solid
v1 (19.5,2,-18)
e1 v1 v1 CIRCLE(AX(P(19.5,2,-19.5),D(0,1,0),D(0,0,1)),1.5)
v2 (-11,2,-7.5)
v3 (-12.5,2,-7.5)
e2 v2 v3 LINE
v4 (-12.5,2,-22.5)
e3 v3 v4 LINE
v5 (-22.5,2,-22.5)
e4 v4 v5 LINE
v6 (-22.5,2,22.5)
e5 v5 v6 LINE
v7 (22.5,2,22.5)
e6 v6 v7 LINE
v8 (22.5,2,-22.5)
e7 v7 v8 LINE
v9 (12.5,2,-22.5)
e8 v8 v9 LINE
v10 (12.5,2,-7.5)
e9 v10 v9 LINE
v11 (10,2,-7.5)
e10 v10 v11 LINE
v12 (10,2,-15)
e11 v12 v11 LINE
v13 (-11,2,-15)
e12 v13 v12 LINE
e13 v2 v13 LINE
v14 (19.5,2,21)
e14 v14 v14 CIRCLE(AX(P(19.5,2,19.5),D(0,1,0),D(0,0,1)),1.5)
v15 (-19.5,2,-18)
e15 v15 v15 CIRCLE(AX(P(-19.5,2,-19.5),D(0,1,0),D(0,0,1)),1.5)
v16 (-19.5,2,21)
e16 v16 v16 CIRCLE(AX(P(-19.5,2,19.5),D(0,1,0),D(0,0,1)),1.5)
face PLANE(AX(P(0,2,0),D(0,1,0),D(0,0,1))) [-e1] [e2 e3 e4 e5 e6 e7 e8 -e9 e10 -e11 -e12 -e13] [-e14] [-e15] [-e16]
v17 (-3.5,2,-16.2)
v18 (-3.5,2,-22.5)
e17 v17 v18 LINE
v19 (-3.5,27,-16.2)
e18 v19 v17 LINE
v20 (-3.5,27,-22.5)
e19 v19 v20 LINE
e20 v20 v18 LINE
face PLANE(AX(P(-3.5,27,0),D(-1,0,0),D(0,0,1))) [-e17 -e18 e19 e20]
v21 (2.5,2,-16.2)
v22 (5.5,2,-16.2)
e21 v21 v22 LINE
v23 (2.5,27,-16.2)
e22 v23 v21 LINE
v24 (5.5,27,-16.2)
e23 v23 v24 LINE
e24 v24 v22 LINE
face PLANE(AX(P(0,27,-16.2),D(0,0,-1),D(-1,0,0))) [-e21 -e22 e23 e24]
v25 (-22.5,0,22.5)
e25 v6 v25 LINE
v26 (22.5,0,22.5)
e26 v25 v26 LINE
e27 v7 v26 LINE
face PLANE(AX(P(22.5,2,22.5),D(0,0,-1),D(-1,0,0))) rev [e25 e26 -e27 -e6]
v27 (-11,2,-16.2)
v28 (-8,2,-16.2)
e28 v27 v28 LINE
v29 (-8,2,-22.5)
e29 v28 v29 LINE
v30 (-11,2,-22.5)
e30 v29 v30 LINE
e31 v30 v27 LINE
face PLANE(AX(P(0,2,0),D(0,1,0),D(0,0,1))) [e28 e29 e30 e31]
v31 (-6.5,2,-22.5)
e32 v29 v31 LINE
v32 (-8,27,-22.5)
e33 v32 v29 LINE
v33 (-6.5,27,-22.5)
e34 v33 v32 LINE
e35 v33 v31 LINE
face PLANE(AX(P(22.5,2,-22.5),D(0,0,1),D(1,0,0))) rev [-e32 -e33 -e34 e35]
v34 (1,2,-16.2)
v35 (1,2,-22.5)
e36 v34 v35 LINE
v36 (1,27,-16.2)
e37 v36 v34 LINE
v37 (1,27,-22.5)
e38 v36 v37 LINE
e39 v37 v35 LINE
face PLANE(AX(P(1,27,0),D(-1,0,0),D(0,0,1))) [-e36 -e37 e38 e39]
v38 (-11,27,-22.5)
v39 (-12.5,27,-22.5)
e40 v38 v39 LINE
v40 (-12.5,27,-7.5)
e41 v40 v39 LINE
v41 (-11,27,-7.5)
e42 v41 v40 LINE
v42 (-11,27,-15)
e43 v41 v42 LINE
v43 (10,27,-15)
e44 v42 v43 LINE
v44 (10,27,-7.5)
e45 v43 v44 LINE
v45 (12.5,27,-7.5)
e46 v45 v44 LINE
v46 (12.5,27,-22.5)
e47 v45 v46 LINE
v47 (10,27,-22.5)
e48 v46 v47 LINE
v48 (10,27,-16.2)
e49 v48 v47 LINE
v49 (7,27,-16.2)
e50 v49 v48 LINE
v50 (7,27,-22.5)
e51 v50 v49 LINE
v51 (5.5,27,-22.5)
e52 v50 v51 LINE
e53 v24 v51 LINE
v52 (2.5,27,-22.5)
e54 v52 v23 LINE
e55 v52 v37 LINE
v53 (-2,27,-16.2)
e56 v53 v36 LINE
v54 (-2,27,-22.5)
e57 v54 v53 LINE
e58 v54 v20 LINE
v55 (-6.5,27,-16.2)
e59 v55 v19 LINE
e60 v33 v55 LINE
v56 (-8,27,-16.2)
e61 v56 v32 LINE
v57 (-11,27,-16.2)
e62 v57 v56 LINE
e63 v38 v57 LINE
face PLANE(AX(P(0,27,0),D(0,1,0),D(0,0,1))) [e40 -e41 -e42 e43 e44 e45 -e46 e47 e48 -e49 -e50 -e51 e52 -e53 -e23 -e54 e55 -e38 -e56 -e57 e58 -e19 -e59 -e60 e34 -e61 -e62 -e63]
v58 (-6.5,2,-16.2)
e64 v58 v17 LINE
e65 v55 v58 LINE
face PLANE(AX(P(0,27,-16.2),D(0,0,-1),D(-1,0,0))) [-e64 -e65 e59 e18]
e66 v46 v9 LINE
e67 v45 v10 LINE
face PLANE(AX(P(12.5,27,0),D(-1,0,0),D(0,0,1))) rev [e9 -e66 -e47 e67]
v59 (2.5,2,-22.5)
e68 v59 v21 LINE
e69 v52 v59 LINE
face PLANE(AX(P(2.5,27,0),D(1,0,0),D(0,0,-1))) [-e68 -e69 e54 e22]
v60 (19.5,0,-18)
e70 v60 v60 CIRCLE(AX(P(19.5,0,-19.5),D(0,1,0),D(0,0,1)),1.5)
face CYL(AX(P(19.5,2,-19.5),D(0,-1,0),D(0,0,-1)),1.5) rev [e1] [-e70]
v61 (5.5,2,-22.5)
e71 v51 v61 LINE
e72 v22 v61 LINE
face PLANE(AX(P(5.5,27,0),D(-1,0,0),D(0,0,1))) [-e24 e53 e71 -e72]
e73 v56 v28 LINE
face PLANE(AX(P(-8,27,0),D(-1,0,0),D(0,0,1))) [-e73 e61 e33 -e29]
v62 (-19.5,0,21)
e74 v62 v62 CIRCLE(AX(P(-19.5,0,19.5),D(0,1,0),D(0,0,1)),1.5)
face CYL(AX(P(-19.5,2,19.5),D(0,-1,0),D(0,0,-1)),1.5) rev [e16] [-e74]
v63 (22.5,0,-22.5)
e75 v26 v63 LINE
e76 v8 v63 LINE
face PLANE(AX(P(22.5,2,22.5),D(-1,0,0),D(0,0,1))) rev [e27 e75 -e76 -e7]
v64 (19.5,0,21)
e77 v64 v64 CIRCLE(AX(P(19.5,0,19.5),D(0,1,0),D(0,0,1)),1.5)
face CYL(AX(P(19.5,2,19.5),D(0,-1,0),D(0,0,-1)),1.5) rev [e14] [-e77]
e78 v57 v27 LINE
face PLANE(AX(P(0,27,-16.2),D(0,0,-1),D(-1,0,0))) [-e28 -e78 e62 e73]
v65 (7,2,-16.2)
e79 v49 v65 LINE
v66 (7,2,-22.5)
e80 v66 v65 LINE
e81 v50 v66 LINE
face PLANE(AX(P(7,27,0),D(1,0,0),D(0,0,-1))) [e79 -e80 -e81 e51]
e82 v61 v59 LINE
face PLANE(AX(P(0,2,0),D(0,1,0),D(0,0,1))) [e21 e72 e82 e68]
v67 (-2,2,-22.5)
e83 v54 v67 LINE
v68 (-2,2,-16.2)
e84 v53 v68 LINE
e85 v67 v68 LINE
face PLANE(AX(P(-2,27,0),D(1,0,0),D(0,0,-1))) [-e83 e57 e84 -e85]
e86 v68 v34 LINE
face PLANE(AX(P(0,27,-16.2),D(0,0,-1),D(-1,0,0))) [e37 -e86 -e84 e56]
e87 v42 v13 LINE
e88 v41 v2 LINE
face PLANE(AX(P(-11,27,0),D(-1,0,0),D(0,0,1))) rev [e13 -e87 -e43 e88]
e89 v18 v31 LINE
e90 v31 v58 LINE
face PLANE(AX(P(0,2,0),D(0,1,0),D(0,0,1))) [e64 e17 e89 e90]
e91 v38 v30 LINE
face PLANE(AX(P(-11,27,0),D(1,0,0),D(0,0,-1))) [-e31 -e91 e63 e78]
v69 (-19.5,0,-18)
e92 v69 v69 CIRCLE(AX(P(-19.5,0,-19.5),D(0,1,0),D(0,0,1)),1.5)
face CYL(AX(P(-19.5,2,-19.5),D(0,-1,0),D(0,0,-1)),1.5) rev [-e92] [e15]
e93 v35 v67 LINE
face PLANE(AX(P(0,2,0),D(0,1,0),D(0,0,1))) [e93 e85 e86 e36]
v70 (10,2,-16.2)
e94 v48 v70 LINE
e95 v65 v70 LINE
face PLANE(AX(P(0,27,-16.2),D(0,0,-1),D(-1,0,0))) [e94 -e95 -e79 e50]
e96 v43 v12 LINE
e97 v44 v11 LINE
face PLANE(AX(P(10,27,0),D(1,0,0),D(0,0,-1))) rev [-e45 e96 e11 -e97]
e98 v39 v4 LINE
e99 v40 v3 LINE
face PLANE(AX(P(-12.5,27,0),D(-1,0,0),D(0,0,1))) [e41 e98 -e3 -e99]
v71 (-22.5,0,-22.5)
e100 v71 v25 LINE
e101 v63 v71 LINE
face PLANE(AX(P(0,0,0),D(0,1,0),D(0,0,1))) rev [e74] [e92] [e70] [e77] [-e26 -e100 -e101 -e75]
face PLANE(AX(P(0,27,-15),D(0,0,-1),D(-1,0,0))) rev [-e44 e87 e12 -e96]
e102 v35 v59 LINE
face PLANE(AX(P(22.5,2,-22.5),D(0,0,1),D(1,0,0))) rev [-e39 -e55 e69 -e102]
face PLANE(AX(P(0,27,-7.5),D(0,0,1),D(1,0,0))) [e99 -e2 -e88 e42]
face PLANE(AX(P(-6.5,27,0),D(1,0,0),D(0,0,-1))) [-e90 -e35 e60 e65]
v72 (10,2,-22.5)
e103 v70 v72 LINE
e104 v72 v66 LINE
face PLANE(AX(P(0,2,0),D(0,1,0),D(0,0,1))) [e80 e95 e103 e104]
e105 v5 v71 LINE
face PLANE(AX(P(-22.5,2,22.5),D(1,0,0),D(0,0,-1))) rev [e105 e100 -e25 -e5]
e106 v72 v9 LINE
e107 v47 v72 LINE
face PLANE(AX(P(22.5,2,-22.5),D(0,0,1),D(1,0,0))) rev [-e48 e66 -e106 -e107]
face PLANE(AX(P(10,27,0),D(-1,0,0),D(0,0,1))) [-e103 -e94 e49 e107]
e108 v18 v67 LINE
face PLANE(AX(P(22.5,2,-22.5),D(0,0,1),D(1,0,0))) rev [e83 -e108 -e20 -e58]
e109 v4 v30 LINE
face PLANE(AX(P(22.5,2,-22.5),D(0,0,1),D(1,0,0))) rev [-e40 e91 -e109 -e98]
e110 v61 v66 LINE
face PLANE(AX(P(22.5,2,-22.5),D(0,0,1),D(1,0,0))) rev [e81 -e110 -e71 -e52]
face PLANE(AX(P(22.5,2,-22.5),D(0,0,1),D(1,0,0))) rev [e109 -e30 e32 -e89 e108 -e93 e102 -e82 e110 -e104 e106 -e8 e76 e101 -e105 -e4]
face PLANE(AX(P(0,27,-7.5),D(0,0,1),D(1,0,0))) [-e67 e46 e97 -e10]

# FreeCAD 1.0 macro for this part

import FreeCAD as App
import Part
import Sketcher

V = App.Vector

doc = App.newDocument("Part")
params = doc.addObject("Spreadsheet::Sheet", "Params")
for row, (alias, value) in enumerate([
    ("sketch1_diameter", "3 mm"),
    ("sketch1_width", "45 mm"),
    ("pad1_length", "2 mm"),
    ("sketch2_width", "3 mm"),
    ("sketch2_width2", "21 mm"),
    ("sketch2_height", "15 mm"),
    ("sketch2_width3", "2.5 mm"),
    ("sketch2_height2", "6.3 mm"),
    ("pad2_length", "25 mm"),
], start=1):
    params.set(f"A{row}", alias)
    params.set(f"B{row}", "=" + value)
    params.setAlias(f"B{row}", alias)

body = doc.addObject("PartDesign::Body", "Body")

# Sketch on XZ plane
sketch1 = body.newObject("Sketcher::SketchObject", "Sketch")
sketch1.AttachmentSupport = (doc.getObject("XZ_Plane"), [""])
sketch1.MapMode = "FlatFace"
sketch1.addGeometry(Part.LineSegment(V(-22.5, -22.5, 0), V(-22.5, 22.5, 0)), False)
sketch1.addGeometry(Part.LineSegment(V(-22.5, 22.5, 0), V(22.5, 22.5, 0)), False)
sketch1.addGeometry(Part.LineSegment(V(22.5, 22.5, 0), V(22.5, -22.5, 0)), False)
sketch1.addGeometry(Part.LineSegment(V(22.5, -22.5, 0), V(-22.5, -22.5, 0)), False)
sketch1.addGeometry(Part.Circle(V(-19.5, 19.5, 0), V(0, 0, 1), 1.5), False)
sketch1.addGeometry(Part.Circle(V(19.5, 19.5, 0), V(0, 0, 1), 1.5), False)
sketch1.addGeometry(Part.Circle(V(-19.5, -19.5, 0), V(0, 0, 1), 1.5), False)
sketch1.addGeometry(Part.Circle(V(19.5, -19.5, 0), V(0, 0, 1), 1.5), False)
sketch1.addConstraint(Sketcher.Constraint("Coincident", 0, 2, 1, 1))
sketch1.addConstraint(Sketcher.Constraint("Coincident", 1, 2, 2, 1))
sketch1.addConstraint(Sketcher.Constraint("Coincident", 2, 2, 3, 1))
sketch1.addConstraint(Sketcher.Constraint("Coincident", 3, 2, 0, 1))
sketch1.addConstraint(Sketcher.Constraint("Vertical", 0))
sketch1.addConstraint(Sketcher.Constraint("Horizontal", 1))
sketch1.addConstraint(Sketcher.Constraint("Vertical", 2))
sketch1.addConstraint(Sketcher.Constraint("Horizontal", 3))
sketch1.addConstraint(Sketcher.Constraint("Equal", 4, 5))
sketch1.addConstraint(Sketcher.Constraint("Equal", 5, 6))
sketch1.addConstraint(Sketcher.Constraint("Equal", 6, 7))
sketch1.addConstraint(Sketcher.Constraint("Symmetric", 5, 3, 6, 3, -1, 1))
sketch1.addConstraint(Sketcher.Constraint("Symmetric", 4, 3, 7, 3, -1, 1))
sketch1.addConstraint(Sketcher.Constraint("Symmetric", 0, 2, 2, 2, -1, 1))
sketch1.addConstraint(Sketcher.Constraint("Symmetric", 4, 3, 5, 3, -2))
sketch1.addConstraint(Sketcher.Constraint("Equal", 3, 0))
sketch1.addConstraint(Sketcher.Constraint("Diameter", 4, 3.0))
sketch1.addConstraint(Sketcher.Constraint("DistanceX", 1, 1, 1, 2, 45.0))
sketch1.addConstraint(Sketcher.Constraint("DistanceX", 4, 3, 5, 3, 39.0))
sketch1.addConstraint(Sketcher.Constraint("DistanceY", 6, 3, 4, 3, 39.0))
sketch1.setExpression("Constraints[16]", "Params.sketch1_diameter")
sketch1.setExpression("Constraints[17]", "Params.sketch1_width")
pad1 = body.newObject("PartDesign::Pad", "Pad")
pad1.Profile = sketch1
pad1.setExpression("Length", "Params.pad1_length")
pad1.Reversed = True

# Sketch on XZ plane
sketch2 = body.newObject("Sketcher::SketchObject", "Sketch001")
sketch2.AttachmentSupport = (doc.getObject("XZ_Plane"), [""])
sketch2.MapMode = "FlatFace"
sketch2.AttachmentOffset = App.Placement(V(0, 0, -2), App.Rotation())
sketch2.addGeometry(Part.LineSegment(V(10, -7.5, 0), V(12.5, -7.5, 0)), False)
sketch2.addGeometry(Part.LineSegment(V(12.5, -7.5, 0), V(12.5, -22.5, 0)), False)
sketch2.addGeometry(Part.LineSegment(V(12.5, -22.5, 0), V(10, -22.5, 0)), False)
sketch2.addGeometry(Part.LineSegment(V(10, -22.5, 0), V(10, -16.2, 0)), False)
sketch2.addGeometry(Part.LineSegment(V(10, -16.2, 0), V(7, -16.2, 0)), False)
sketch2.addGeometry(Part.LineSegment(V(7, -16.2, 0), V(7, -22.5, 0)), False)
sketch2.addGeometry(Part.LineSegment(V(7, -22.5, 0), V(5.5, -22.5, 0)), False)
sketch2.addGeometry(Part.LineSegment(V(5.5, -22.5, 0), V(5.5, -16.2, 0)), False)
sketch2.addGeometry(Part.LineSegment(V(5.5, -16.2, 0), V(2.5, -16.2, 0)), False)
sketch2.addGeometry(Part.LineSegment(V(2.5, -16.2, 0), V(2.5, -22.5, 0)), False)
sketch2.addGeometry(Part.LineSegment(V(2.5, -22.5, 0), V(1, -22.5, 0)), False)
sketch2.addGeometry(Part.LineSegment(V(1, -22.5, 0), V(1, -16.2, 0)), False)
sketch2.addGeometry(Part.LineSegment(V(1, -16.2, 0), V(-2, -16.2, 0)), False)
sketch2.addGeometry(Part.LineSegment(V(-2, -16.2, 0), V(-2, -22.5, 0)), False)
sketch2.addGeometry(Part.LineSegment(V(-2, -22.5, 0), V(-3.5, -22.5, 0)), False)
sketch2.addGeometry(Part.LineSegment(V(-3.5, -22.5, 0), V(-3.5, -16.2, 0)), False)
sketch2.addGeometry(Part.LineSegment(V(-3.5, -16.2, 0), V(-6.5, -16.2, 0)), False)
sketch2.addGeometry(Part.LineSegment(V(-6.5, -16.2, 0), V(-6.5, -22.5, 0)), False)
sketch2.addGeometry(Part.LineSegment(V(-6.5, -22.5, 0), V(-8, -22.5, 0)), False)
sketch2.addGeometry(Part.LineSegment(V(-8, -22.5, 0), V(-8, -16.2, 0)), False)
sketch2.addGeometry(Part.LineSegment(V(-8, -16.2, 0), V(-11, -16.2, 0)), False)
sketch2.addGeometry(Part.LineSegment(V(-11, -16.2, 0), V(-11, -22.5, 0)), False)
sketch2.addGeometry(Part.LineSegment(V(-11, -22.5, 0), V(-12.5, -22.5, 0)), False)
sketch2.addGeometry(Part.LineSegment(V(-12.5, -22.5, 0), V(-12.5, -7.5, 0)), False)
sketch2.addGeometry(Part.LineSegment(V(-12.5, -7.5, 0), V(-11, -7.5, 0)), False)
sketch2.addGeometry(Part.LineSegment(V(-11, -7.5, 0), V(-11, -15, 0)), False)
sketch2.addGeometry(Part.LineSegment(V(-11, -15, 0), V(10, -15, 0)), False)
sketch2.addGeometry(Part.LineSegment(V(10, -15, 0), V(10, -7.5, 0)), False)
sketch2.addConstraint(Sketcher.Constraint("Coincident", 0, 2, 1, 1))
sketch2.addConstraint(Sketcher.Constraint("Coincident", 1, 2, 2, 1))
sketch2.addConstraint(Sketcher.Constraint("Coincident", 2, 2, 3, 1))
sketch2.addConstraint(Sketcher.Constraint("Coincident", 3, 2, 4, 1))
sketch2.addConstraint(Sketcher.Constraint("Coincident", 4, 2, 5, 1))
sketch2.addConstraint(Sketcher.Constraint("Coincident", 5, 2, 6, 1))
sketch2.addConstraint(Sketcher.Constraint("Coincident", 6, 2, 7, 1))
sketch2.addConstraint(Sketcher.Constraint("Coincident", 7, 2, 8, 1))
sketch2.addConstraint(Sketcher.Constraint("Coincident", 8, 2, 9, 1))
sketch2.addConstraint(Sketcher.Constraint("Coincident", 9, 2, 10, 1))
sketch2.addConstraint(Sketcher.Constraint("Coincident", 10, 2, 11, 1))
sketch2.addConstraint(Sketcher.Constraint("Coincident", 11, 2, 12, 1))
sketch2.addConstraint(Sketcher.Constraint("Coincident", 12, 2, 13, 1))
sketch2.addConstraint(Sketcher.Constraint("Coincident", 13, 2, 14, 1))
sketch2.addConstraint(Sketcher.Constraint("Coincident", 14, 2, 15, 1))
sketch2.addConstraint(Sketcher.Constraint("Coincident", 15, 2, 16, 1))
sketch2.addConstraint(Sketcher.Constraint("Coincident", 16, 2, 17, 1))
sketch2.addConstraint(Sketcher.Constraint("Coincident", 17, 2, 18, 1))
sketch2.addConstraint(Sketcher.Constraint("Coincident", 18, 2, 19, 1))
sketch2.addConstraint(Sketcher.Constraint("Coincident", 19, 2, 20, 1))
sketch2.addConstraint(Sketcher.Constraint("Coincident", 20, 2, 21, 1))
sketch2.addConstraint(Sketcher.Constraint("Coincident", 21, 2, 22, 1))
sketch2.addConstraint(Sketcher.Constraint("Coincident", 22, 2, 23, 1))
sketch2.addConstraint(Sketcher.Constraint("Coincident", 23, 2, 24, 1))
sketch2.addConstraint(Sketcher.Constraint("Coincident", 24, 2, 25, 1))
sketch2.addConstraint(Sketcher.Constraint("Coincident", 25, 2, 26, 1))
sketch2.addConstraint(Sketcher.Constraint("Coincident", 26, 2, 27, 1))
sketch2.addConstraint(Sketcher.Constraint("Coincident", 27, 2, 0, 1))
sketch2.addConstraint(Sketcher.Constraint("Horizontal", 0))
sketch2.addConstraint(Sketcher.Constraint("Vertical", 1))
sketch2.addConstraint(Sketcher.Constraint("Horizontal", 2))
sketch2.addConstraint(Sketcher.Constraint("Vertical", 3))
sketch2.addConstraint(Sketcher.Constraint("Horizontal", 4))
sketch2.addConstraint(Sketcher.Constraint("Vertical", 5))
sketch2.addConstraint(Sketcher.Constraint("Horizontal", 6))
sketch2.addConstraint(Sketcher.Constraint("Vertical", 7))
sketch2.addConstraint(Sketcher.Constraint("Horizontal", 8))
sketch2.addConstraint(Sketcher.Constraint("Vertical", 9))
sketch2.addConstraint(Sketcher.Constraint("Horizontal", 10))
sketch2.addConstraint(Sketcher.Constraint("Vertical", 11))
sketch2.addConstraint(Sketcher.Constraint("Horizontal", 12))
sketch2.addConstraint(Sketcher.Constraint("Vertical", 13))
sketch2.addConstraint(Sketcher.Constraint("Horizontal", 14))
sketch2.addConstraint(Sketcher.Constraint("Vertical", 15))
sketch2.addConstraint(Sketcher.Constraint("Horizontal", 16))
sketch2.addConstraint(Sketcher.Constraint("Vertical", 17))
sketch2.addConstraint(Sketcher.Constraint("Horizontal", 18))
sketch2.addConstraint(Sketcher.Constraint("Vertical", 19))
sketch2.addConstraint(Sketcher.Constraint("Horizontal", 20))
sketch2.addConstraint(Sketcher.Constraint("Vertical", 21))
sketch2.addConstraint(Sketcher.Constraint("Horizontal", 22))
sketch2.addConstraint(Sketcher.Constraint("Vertical", 23))
sketch2.addConstraint(Sketcher.Constraint("Horizontal", 24))
sketch2.addConstraint(Sketcher.Constraint("Vertical", 25))
sketch2.addConstraint(Sketcher.Constraint("Horizontal", 26))
sketch2.addConstraint(Sketcher.Constraint("Vertical", 27))
sketch2.addConstraint(Sketcher.Constraint("Symmetric", 1, 2, 22, 2, -2))
sketch2.addConstraint(Sketcher.Constraint("Horizontal", 2, 2, 5, 2))
sketch2.addConstraint(Sketcher.Constraint("Horizontal", 4, 2, 7, 2))
sketch2.addConstraint(Sketcher.Constraint("Horizontal", 6, 2, 9, 2))
sketch2.addConstraint(Sketcher.Constraint("Horizontal", 8, 2, 11, 2))
sketch2.addConstraint(Sketcher.Constraint("Horizontal", 10, 2, 13, 2))
sketch2.addConstraint(Sketcher.Constraint("Horizontal", 12, 2, 15, 2))
sketch2.addConstraint(Sketcher.Constraint("Horizontal", 14, 2, 17, 2))
sketch2.addConstraint(Sketcher.Constraint("Horizontal", 16, 2, 19, 2))
sketch2.addConstraint(Sketcher.Constraint("Horizontal", 0, 2, 23, 2))
sketch2.addConstraint(Sketcher.Constraint("Vertical", 21, 2, 24, 2))
sketch2.addConstraint(Sketcher.Constraint("Vertical", 3, 2, 26, 2))
sketch2.addConstraint(Sketcher.Constraint("Equal", 4, 8))
sketch2.addConstraint(Sketcher.Constraint("Equal", 6, 10))
sketch2.addConstraint(Sketcher.Constraint("Equal", 8, 12))
sketch2.addConstraint(Sketcher.Constraint("Equal", 10, 14))
sketch2.addConstraint(Sketcher.Constraint("Equal", 12, 16))
sketch2.addConstraint(Sketcher.Constraint("Equal", 14, 18))
sketch2.addConstraint(Sketcher.Constraint("Equal", 16, 20))
sketch2.addConstraint(Sketcher.Constraint("Equal", 18, 22))
sketch2.addConstraint(Sketcher.Constraint("DistanceX", 4, 2, 4, 1, 3.0))
sketch2.addConstraint(Sketcher.Constraint("DistanceX", 26, 1, 26, 2, 21.0))
sketch2.addConstraint(Sketcher.Constraint("DistanceY", 1, 2, 1, 1, 15.0))
sketch2.addConstraint(Sketcher.Constraint("DistanceX", 0, 1, 0, 2, 2.5))
sketch2.addConstraint(Sketcher.Constraint("DistanceY", 3, 1, 3, 2, 6.3))
sketch2.addConstraint(Sketcher.Constraint("DistanceY", 25, 2, 25, 1, 7.5))
sketch2.addConstraint(Sketcher.Constraint("DistanceY", 25, 2, -1, 1, 15.0))
sketch2.setExpression("Constraints[76]", "Params.sketch2_width")
sketch2.setExpression("Constraints[77]", "Params.sketch2_width2")
sketch2.setExpression("Constraints[78]", "Params.sketch2_height")
sketch2.setExpression("Constraints[79]", "Params.sketch2_width3")
sketch2.setExpression("Constraints[80]", "Params.sketch2_height2")
pad2 = body.newObject("PartDesign::Pad", "Pad001")
pad2.Profile = sketch2
pad2.setExpression("Length", "Params.pad2_length")
pad2.Reversed = True

doc.recompute()
